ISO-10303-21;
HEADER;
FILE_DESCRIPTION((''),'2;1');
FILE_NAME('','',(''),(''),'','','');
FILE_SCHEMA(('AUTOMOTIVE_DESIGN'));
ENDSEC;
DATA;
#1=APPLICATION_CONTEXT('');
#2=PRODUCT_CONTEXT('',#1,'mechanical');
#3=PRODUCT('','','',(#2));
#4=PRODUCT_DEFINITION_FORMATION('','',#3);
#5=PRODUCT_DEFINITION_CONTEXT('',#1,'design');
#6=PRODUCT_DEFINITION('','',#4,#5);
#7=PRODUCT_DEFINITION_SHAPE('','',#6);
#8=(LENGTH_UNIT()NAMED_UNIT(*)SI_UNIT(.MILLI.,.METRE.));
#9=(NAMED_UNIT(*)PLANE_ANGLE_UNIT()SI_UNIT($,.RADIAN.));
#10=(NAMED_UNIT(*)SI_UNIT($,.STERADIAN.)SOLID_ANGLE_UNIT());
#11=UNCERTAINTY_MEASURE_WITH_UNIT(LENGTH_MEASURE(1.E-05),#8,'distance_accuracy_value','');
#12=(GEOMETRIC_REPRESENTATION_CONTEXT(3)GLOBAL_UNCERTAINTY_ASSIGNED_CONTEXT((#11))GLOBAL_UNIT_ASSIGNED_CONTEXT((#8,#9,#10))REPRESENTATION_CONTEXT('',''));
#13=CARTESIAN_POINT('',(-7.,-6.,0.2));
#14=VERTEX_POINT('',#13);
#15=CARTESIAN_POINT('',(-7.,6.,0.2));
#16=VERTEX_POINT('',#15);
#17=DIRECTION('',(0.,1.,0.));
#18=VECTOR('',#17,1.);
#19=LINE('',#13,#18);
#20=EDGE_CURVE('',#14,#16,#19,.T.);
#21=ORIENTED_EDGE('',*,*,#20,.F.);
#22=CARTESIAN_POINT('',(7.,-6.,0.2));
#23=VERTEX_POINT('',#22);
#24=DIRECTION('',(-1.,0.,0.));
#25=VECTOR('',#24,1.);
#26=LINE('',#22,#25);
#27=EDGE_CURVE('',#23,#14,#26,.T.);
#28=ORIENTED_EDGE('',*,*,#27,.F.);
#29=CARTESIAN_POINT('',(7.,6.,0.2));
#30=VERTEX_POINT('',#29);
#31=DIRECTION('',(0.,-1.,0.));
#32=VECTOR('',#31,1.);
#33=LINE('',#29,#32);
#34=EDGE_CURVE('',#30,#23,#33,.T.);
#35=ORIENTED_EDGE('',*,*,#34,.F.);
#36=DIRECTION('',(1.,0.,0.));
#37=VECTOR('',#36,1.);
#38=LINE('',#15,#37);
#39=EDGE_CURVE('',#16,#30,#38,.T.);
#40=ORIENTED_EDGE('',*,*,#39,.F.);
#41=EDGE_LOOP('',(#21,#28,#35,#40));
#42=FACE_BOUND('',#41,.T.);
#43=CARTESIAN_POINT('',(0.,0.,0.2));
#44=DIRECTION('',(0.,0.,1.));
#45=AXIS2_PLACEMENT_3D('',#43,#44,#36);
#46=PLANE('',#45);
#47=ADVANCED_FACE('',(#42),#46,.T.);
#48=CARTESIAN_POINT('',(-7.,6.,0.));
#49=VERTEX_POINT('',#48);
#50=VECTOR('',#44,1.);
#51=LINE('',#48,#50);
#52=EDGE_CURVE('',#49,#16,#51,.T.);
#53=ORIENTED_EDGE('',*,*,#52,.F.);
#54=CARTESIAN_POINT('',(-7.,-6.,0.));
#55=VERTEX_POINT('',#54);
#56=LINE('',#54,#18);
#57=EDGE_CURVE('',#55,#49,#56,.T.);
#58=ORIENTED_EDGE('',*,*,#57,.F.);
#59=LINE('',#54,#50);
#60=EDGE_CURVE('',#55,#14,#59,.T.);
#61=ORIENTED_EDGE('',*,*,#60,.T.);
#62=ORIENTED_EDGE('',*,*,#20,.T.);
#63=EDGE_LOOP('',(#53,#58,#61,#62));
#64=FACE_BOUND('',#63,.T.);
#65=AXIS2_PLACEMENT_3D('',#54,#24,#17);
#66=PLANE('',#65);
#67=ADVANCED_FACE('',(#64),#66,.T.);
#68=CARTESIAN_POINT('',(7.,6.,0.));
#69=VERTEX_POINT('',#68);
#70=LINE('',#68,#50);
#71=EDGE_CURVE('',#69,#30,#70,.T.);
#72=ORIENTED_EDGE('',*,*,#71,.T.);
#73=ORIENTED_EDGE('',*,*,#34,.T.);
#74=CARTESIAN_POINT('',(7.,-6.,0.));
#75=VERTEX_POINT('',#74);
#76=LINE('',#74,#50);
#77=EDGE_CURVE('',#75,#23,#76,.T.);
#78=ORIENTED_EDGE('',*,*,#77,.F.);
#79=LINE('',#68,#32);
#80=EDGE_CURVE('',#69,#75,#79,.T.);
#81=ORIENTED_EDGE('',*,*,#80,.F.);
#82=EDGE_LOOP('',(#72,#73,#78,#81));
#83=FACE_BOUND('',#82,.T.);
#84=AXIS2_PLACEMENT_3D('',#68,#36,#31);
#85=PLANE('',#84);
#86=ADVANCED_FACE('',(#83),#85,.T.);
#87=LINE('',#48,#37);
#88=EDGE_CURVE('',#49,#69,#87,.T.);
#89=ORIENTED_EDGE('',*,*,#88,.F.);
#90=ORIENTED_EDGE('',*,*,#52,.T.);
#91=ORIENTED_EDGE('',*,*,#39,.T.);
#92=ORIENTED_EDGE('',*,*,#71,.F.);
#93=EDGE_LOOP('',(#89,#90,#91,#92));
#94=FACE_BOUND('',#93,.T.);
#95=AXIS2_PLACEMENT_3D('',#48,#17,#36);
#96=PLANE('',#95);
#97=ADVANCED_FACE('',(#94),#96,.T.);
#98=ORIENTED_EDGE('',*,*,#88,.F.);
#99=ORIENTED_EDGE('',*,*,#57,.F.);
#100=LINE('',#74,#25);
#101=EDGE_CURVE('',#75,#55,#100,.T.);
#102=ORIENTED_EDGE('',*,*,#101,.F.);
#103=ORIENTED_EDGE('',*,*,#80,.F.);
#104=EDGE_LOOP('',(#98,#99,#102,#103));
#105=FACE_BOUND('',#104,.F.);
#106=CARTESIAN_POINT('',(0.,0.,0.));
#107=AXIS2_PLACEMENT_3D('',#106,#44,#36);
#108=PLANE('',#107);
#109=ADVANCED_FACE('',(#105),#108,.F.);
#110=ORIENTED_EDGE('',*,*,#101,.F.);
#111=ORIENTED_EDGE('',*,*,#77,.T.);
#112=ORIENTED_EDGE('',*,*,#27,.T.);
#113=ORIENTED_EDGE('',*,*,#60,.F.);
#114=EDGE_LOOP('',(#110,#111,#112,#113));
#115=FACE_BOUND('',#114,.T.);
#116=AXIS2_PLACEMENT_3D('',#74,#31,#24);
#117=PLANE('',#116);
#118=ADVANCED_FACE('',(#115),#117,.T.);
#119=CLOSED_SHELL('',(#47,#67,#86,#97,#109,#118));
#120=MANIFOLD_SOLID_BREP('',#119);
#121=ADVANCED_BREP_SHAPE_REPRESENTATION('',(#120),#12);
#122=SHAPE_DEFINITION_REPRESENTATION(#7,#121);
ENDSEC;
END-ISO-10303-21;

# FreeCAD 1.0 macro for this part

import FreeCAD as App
import Part
import Sketcher
Q = App.Units.Quantity

doc = App.newDocument("Part")
params = doc.addObject("Spreadsheet::Sheet", "Params")
for row, (alias, value) in enumerate([
    ("sketch1_width", "14 mm"),
    ("sketch1_height", "12 mm"),
    ("pad1_length", "0.2 mm"),
], start=1):
    params.set(f"A{row}", alias)
    params.set(f"B{row}", "=" + value)
    params.setAlias(f"B{row}", alias)

body = doc.addObject("PartDesign::Body", "Body")

sketch1 = body.newObject("Sketcher::SketchObject", "Sketch")
sketch1.AttachmentSupport = (doc.getObject("XY_Plane"), [""])
sketch1.MapMode = "FlatFace"
sketch1.addGeometry([
    Part.LineSegment(App.Vector(-7, -6, 0), App.Vector(7, -6, 0)),
    Part.LineSegment(App.Vector(7, -6, 0), App.Vector(7, 6, 0)),
    Part.LineSegment(App.Vector(7, 6, 0), App.Vector(-7, 6, 0)),
    Part.LineSegment(App.Vector(-7, 6, 0), App.Vector(-7, -6, 0)),
], False)
sketch1.addConstraint([
    Sketcher.Constraint("Coincident", 0, 2, 1, 1),
    Sketcher.Constraint("Coincident", 1, 2, 2, 1),
    Sketcher.Constraint("Coincident", 2, 2, 3, 1),
    Sketcher.Constraint("Coincident", 3, 2, 0, 1),
    Sketcher.Constraint("Horizontal", 0),
    Sketcher.Constraint("Vertical", 1),
    Sketcher.Constraint("Horizontal", 2),
    Sketcher.Constraint("Vertical", 3),
    Sketcher.Constraint("Symmetric", 0, 2, 2, 2, -1, 1),
    Sketcher.Constraint("DistanceX", 0, 1, 0, 2, Q("14 mm")),
    Sketcher.Constraint("DistanceY", 1, 1, 1, 2, Q("12 mm")),
])
sketch1.setExpression("Constraints[9]", "Params.sketch1_width")
sketch1.setExpression("Constraints[10]", "Params.sketch1_height")
pad1 = body.newObject("PartDesign::Pad", "Pad")
pad1.Profile = sketch1
pad1.setExpression("Length", "Params.pad1_length")

doc.recompute()
